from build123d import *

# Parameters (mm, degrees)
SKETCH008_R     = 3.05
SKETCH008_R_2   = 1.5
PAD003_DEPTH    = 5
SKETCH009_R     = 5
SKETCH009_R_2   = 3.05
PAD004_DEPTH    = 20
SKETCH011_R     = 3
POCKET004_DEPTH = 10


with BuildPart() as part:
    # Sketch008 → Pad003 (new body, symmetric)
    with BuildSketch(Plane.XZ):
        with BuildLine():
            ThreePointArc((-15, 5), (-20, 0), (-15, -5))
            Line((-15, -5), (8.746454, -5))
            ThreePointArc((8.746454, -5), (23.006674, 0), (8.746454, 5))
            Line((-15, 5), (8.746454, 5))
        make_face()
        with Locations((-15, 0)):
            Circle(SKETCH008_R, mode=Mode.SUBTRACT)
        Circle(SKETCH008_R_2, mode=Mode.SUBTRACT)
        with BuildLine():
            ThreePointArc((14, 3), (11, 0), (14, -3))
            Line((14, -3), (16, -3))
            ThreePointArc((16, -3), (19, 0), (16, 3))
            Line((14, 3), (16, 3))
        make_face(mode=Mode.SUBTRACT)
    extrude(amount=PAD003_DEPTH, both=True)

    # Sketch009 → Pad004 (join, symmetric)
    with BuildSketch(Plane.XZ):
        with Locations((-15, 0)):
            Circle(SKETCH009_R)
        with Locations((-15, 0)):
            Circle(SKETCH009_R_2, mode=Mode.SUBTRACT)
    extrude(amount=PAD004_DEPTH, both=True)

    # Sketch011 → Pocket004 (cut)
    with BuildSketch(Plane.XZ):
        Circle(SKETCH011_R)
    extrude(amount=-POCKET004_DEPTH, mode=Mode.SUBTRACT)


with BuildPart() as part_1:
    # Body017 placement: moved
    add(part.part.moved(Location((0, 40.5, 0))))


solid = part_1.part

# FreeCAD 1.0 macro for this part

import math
import FreeCAD as App
import Part
import Sketcher

V = App.Vector

doc = App.newDocument("Part")
body = doc.addObject("PartDesign::Body", "Body")

# Sketch on XZ plane
sketch1 = doc.addObject("Sketcher::SketchObject", "Sketch")
body.addObject(sketch1)
sketch1.AttachmentSupport = (doc.XZ_Plane, [""])
sketch1.MapMode = "FlatFace"
sketch1.addGeometry([
    Part.ArcOfCircle(Part.Circle(V(-15, 0, 0), V(0, 0, 1), 5), math.radians(90), math.radians(270)),  # 0
    Part.LineSegment(V(-15, -5, 0), V(8.7, -5, 0)),  # 1
    Part.ArcOfCircle(Part.Circle(V(15, 0, 0), V(0, 0, 1), 8), math.radians(-141), math.radians(141)),  # 2
    Part.LineSegment(V(8.7, 5, 0), V(-15, 5, 0)),  # 3
    Part.Circle(V(-15, 0, 0), V(0, 0, 1), 3),  # 4
    Part.Circle(V(0, 0, 0), V(0, 0, 1), 1.5),  # 5
    Part.ArcOfCircle(Part.Circle(V(14, 0, 0), V(0, 0, 1), 3), math.radians(90), math.radians(270)),  # 6
    Part.LineSegment(V(14, 3, 0), V(16, 3, 0)),  # 7
    Part.ArcOfCircle(Part.Circle(V(16, 0, 0), V(0, 0, 1), 3), math.radians(-90), math.radians(90)),  # 8
    Part.LineSegment(V(16, -3, 0), V(14, -3, 0)),  # 9
], False)
sketch1.addConstraint([
    Sketcher.Constraint("Tangent", 0, 2, 1, 1),
    Sketcher.Constraint("Coincident", 1, 2, 2, 1),
    Sketcher.Constraint("Coincident", 2, 2, 3, 1),
    Sketcher.Constraint("Tangent", 3, 2, 0, 1),
    Sketcher.Constraint("Tangent", 6, 1, 7, 1),
    Sketcher.Constraint("Tangent", 7, 2, 8, 2),
    Sketcher.Constraint("Tangent", 8, 1, 9, 1),
    Sketcher.Constraint("Tangent", 9, 2, 6, 2),
    Sketcher.Constraint("Horizontal", 1),
    Sketcher.Constraint("Horizontal", 3),
    Sketcher.Constraint("Horizontal", 7),
    Sketcher.Constraint("Horizontal", 9),
    Sketcher.Constraint("Coincident", 5, 3, -1, 1),
    Sketcher.Constraint("Coincident", 4, 3, 0, 3),
    Sketcher.Constraint("Symmetric", 0, 3, 2, 3, -1, 1),
    Sketcher.Constraint("PointOnObject", 0, 3, -1),
    Sketcher.Constraint("PointOnObject", 6, 3, -1),
    Sketcher.Constraint("Diameter", 5, 3.0),
    Sketcher.Constraint("Radius", 0, 5.0),
    Sketcher.Constraint("Radius", 6, 3.0),
    Sketcher.Constraint("Diameter", 4, 6.1),
    Sketcher.Constraint("DistanceX", 7, 1, 7, 2, 2.0),
    Sketcher.Constraint("DistanceX", 0, 3, -1, 1, 15.0),
    Sketcher.Constraint("DistanceX", -1, 1, 6, 3, 14.0),
    Sketcher.Constraint("Radius", 2, 8.006674),
])
pad1 = doc.addObject("PartDesign::Pad", "Pad")
body.addObject(pad1)
pad1.Profile = sketch1
pad1.Length = 10
pad1.Midplane = True

# Sketch on XZ plane
sketch2 = doc.addObject("Sketcher::SketchObject", "Sketch001")
body.addObject(sketch2)
sketch2.AttachmentSupport = (doc.XZ_Plane, [""])
sketch2.MapMode = "FlatFace"
sketch2.addGeometry([
    Part.Circle(V(-15, 0, 0), V(0, 0, 1), 5),
    Part.Circle(V(-15, 0, 0), V(0, 0, 1), 3),
], False)
sketch2.addConstraint([
    Sketcher.Constraint("Coincident", 1, 3, 0, 3),
    Sketcher.Constraint("PointOnObject", 0, 3, -1),
    Sketcher.Constraint("Diameter", 0, 10.0),
    Sketcher.Constraint("Diameter", 1, 6.1),
    Sketcher.Constraint("DistanceX", 0, 3, -1, 1, 15.0),
])
pad2 = doc.addObject("PartDesign::Pad", "Pad001")
body.addObject(pad2)
pad2.Profile = sketch2
pad2.Length = 40
pad2.Midplane = True

# Sketch on XZ plane
sketch3 = doc.addObject("Sketcher::SketchObject", "Sketch002")
body.addObject(sketch3)
sketch3.AttachmentSupport = (doc.XZ_Plane, [""])
sketch3.MapMode = "FlatFace"
sketch3.addGeometry(Part.Circle(V(0, 0, 0), V(0, 0, 1), 3), False)
sketch3.addConstraint([
    Sketcher.Constraint("Coincident", 0, 3, -1, 1),
    Sketcher.Constraint("Diameter", 0, 6.0),
])
pocket1 = doc.addObject("PartDesign::Pocket", "Pocket")
body.addObject(pocket1)
pocket1.Profile = sketch3
pocket1.Length = 10
body2 = doc.addObject("PartDesign::Body", "Body001")
doc.recompute()

body.Placement = App.Placement(V(0, 40.5, 0), App.Rotation(V(0, 0, 1), 0))
boolean = doc.addObject("PartDesign::Boolean", "Boolean")
body2.addObject(boolean)
boolean.Type = "Fuse"
boolean.addObjects([body])

doc.recompute()
